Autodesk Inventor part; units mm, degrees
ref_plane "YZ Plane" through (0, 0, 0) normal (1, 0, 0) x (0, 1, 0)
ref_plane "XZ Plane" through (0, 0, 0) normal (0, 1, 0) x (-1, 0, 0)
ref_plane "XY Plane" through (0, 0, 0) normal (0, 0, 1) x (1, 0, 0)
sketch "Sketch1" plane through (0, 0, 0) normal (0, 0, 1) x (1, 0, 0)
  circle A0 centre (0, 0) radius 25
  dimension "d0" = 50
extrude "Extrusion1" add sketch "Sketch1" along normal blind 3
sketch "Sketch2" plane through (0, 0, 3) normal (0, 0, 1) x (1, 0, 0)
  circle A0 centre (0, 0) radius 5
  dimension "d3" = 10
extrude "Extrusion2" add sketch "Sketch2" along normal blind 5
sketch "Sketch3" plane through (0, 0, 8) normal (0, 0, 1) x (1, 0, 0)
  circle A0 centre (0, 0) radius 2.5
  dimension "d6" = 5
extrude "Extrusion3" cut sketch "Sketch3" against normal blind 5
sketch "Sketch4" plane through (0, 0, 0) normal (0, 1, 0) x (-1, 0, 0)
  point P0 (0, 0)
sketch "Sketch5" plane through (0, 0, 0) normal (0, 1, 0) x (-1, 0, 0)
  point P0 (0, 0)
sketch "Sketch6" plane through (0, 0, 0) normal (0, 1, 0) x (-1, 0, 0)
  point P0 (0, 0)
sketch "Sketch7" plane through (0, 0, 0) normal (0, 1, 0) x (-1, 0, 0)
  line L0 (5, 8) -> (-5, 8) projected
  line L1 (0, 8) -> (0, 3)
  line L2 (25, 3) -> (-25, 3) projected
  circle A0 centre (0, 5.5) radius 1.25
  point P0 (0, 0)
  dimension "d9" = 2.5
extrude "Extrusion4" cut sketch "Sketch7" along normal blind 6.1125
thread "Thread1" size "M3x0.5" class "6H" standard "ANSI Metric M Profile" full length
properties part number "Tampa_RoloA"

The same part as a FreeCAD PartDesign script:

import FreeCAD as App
import Part
import Sketcher
Q = App.Units.Quantity

doc = App.newDocument("Part")
body = doc.addObject("PartDesign::Body", "Body")

sketch1 = body.newObject("Sketcher::SketchObject", "Sketch")
sketch1.AttachmentSupport = (doc.getObject("XY_Plane"), [""])
sketch1.MapMode = "FlatFace"
sketch1.addGeometry(Part.Circle(App.Vector(0, 0, 0), App.Vector(0, 0, 1), 25), False)
sketch1.addConstraint(Sketcher.Constraint("Coincident", 0, 3, -1, 1))
sketch1.addConstraint(Sketcher.Constraint("Diameter", 0, Q("50 mm")))
pad1 = body.newObject("PartDesign::Pad", "Pad")
pad1.Profile = sketch1
pad1.Length = 3

sketch2 = body.newObject("Sketcher::SketchObject", "Sketch001")
sketch2.AttachmentSupport = (doc.getObject("XY_Plane"), [""])
sketch2.MapMode = "FlatFace"
sketch2.AttachmentOffset = App.Placement(App.Vector(0, 0, 3), App.Rotation())
sketch2.addGeometry(Part.Circle(App.Vector(0, 0, 0), App.Vector(0, 0, 1), 5), False)
sketch2.addConstraint(Sketcher.Constraint("Coincident", 0, 3, -1, 1))
sketch2.addConstraint(Sketcher.Constraint("Diameter", 0, Q("10 mm")))
pad2 = body.newObject("PartDesign::Pad", "Pad001")
pad2.Profile = sketch2
pad2.Length = 5

sketch3 = body.newObject("Sketcher::SketchObject", "Sketch002")
sketch3.AttachmentSupport = (doc.getObject("XY_Plane"), [""])
sketch3.MapMode = "FlatFace"
sketch3.AttachmentOffset = App.Placement(App.Vector(0, 0, 8), App.Rotation())
sketch3.addGeometry(Part.Circle(App.Vector(0, 0, 0), App.Vector(0, 0, 1), 2.5), False)
sketch3.addConstraint(Sketcher.Constraint("Coincident", 0, 3, -1, 1))
sketch3.addConstraint(Sketcher.Constraint("Diameter", 0, Q("5 mm")))
pocket1 = body.newObject("PartDesign::Pocket", "Pocket")
pocket1.Profile = sketch3
pocket1.Length = 5

sketch4 = body.newObject("Sketcher::SketchObject", "Sketch003")
sketch4.AttachmentSupport = (doc.getObject("XZ_Plane"), [""])
sketch4.MapMode = "FlatFace"
sketch4.addGeometry(Part.Circle(App.Vector(0, 5.5, 0), App.Vector(0, 0, 1), 1.2), False)
sketch4.addConstraint(Sketcher.Constraint("PointOnObject", 0, 3, -2))
sketch4.addConstraint(Sketcher.Constraint("Diameter", 0, Q("2.5 mm")))
sketch4.addConstraint(Sketcher.Constraint("DistanceY", -1, 1, 0, 3, Q("5.5 mm")))
pocket2 = body.newObject("PartDesign::Pocket", "Pocket001")
pocket2.Profile = sketch4
pocket2.Length = 6.1125

doc.recompute()
